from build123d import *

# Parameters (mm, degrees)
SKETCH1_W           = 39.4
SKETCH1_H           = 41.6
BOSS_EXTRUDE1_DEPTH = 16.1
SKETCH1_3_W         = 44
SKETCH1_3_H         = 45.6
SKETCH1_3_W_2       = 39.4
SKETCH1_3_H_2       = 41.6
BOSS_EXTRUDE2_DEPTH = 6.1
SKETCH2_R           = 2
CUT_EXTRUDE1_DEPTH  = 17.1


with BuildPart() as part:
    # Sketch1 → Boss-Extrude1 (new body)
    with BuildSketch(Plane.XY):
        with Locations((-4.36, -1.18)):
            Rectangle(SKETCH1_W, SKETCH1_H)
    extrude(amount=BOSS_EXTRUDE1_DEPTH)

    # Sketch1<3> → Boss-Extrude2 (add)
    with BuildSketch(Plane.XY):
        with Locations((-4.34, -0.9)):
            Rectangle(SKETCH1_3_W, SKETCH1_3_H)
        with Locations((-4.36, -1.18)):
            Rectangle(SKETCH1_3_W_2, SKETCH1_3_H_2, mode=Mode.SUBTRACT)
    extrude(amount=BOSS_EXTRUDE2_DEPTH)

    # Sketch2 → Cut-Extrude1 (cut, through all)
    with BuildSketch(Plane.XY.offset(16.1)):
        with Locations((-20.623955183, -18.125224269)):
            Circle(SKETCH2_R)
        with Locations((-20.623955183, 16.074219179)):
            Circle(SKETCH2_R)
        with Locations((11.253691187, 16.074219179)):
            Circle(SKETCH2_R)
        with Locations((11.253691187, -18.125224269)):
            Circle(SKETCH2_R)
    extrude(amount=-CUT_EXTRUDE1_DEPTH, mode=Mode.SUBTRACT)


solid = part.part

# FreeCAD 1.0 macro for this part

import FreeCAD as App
import Part
import Sketcher

V = App.Vector
Q = App.Units.Quantity


def add_polygon(sketch, points):
    """Adds a closed chain of lines whose ends are joined by coincident constraints."""
    first, n = sketch.GeometryCount, len(points)
    for a, b in zip(points, points[1:] + points[:1]):
        sketch.addGeometry(Part.LineSegment(App.Vector(*a, 0), App.Vector(*b, 0)), False)
    for i in range(n):
        sketch.addConstraint(Sketcher.Constraint("Coincident", first + i, 2, first + (i + 1) % n, 1))

doc = App.newDocument("Part")
body = doc.addObject("PartDesign::Body", "Body")

# Sketch on XY plane
sketch1 = doc.addObject("Sketcher::SketchObject", "Sketch")
body.addObject(sketch1)
sketch1.AttachmentSupport = (doc.XY_Plane, [""])
sketch1.MapMode = "FlatFace"
add_polygon(sketch1, [(-24, 20), (-24, -22), (15, -22), (15, 20)])  # lines 0-3
sketch1.addConstraint(Sketcher.Constraint("Vertical", 0))
sketch1.addConstraint(Sketcher.Constraint("Horizontal", 1))
sketch1.addConstraint(Sketcher.Constraint("Vertical", 2))
sketch1.addConstraint(Sketcher.Constraint("Horizontal", 3))
sketch1.addConstraint(Sketcher.Constraint("DistanceX", 1, 1, 1, 2, Q("39.4 mm")))
sketch1.addConstraint(Sketcher.Constraint("DistanceY", 0, 2, 0, 1, Q("41.6 mm")))
sketch1.addConstraint(Sketcher.Constraint("DistanceX", 0, 2, -1, 1, Q("24.06 mm")))
sketch1.addConstraint(Sketcher.Constraint("DistanceY", 0, 2, -1, 1, Q("21.98 mm")))
pad1 = doc.addObject("PartDesign::Pad", "Pad")
body.addObject(pad1)
pad1.Profile = sketch1
pad1.Length = 16.1

# Sketch on XY plane
sketch2 = doc.addObject("Sketcher::SketchObject", "Sketch001")
body.addObject(sketch2)
sketch2.AttachmentSupport = (doc.XY_Plane, [""])
sketch2.MapMode = "FlatFace"
add_polygon(sketch2, [(-26, 22), (-26, -24), (18, -24), (18, 22)])  # lines 0-3
add_polygon(sketch2, [(15, -22), (-24, -22), (-24, 20), (15, 20)])  # lines 4-7
sketch2.addConstraint(Sketcher.Constraint("Vertical", 0))
sketch2.addConstraint(Sketcher.Constraint("Horizontal", 1))
sketch2.addConstraint(Sketcher.Constraint("Vertical", 2))
sketch2.addConstraint(Sketcher.Constraint("Horizontal", 3))
sketch2.addConstraint(Sketcher.Constraint("Horizontal", 4))
sketch2.addConstraint(Sketcher.Constraint("Vertical", 5))
sketch2.addConstraint(Sketcher.Constraint("Horizontal", 6))
sketch2.addConstraint(Sketcher.Constraint("Vertical", 7))
sketch2.addConstraint(Sketcher.Constraint("DistanceX", 1, 1, 1, 2, Q("44 mm")))
sketch2.addConstraint(Sketcher.Constraint("DistanceX", 4, 2, 4, 1, Q("39.4 mm")))
sketch2.addConstraint(Sketcher.Constraint("DistanceY", 0, 2, 0, 1, Q("45.6 mm")))
sketch2.addConstraint(Sketcher.Constraint("DistanceY", 5, 1, 5, 2, Q("41.6 mm")))
sketch2.addConstraint(Sketcher.Constraint("DistanceY", 0, 2, -1, 1, Q("23.7 mm")))
sketch2.addConstraint(Sketcher.Constraint("DistanceX", 0, 2, -1, 1, Q("26.34 mm")))
sketch2.addConstraint(Sketcher.Constraint("DistanceX", 4, 2, -1, 1, Q("24.06 mm")))
sketch2.addConstraint(Sketcher.Constraint("DistanceY", 4, 2, -1, 1, Q("21.98 mm")))
pad2 = doc.addObject("PartDesign::Pad", "Pad001")
body.addObject(pad2)
pad2.Profile = sketch2
pad2.Length = 6.1

# Sketch on XY plane
sketch3 = doc.addObject("Sketcher::SketchObject", "Sketch002")
body.addObject(sketch3)
sketch3.AttachmentSupport = (doc.XY_Plane, [""])
sketch3.MapMode = "FlatFace"
sketch3.AttachmentOffset = App.Placement(V(0, 0, 16.1), App.Rotation())
sketch3.addGeometry(Part.Circle(V(-20.6, -18.1, 0), V(0, 0, 1), 2), False)
sketch3.addGeometry(Part.Circle(V(-20.6, 16.1, 0), V(0, 0, 1), 2), False)
sketch3.addGeometry(Part.Circle(V(11.3, 16.1, 0), V(0, 0, 1), 2), False)
sketch3.addGeometry(Part.Circle(V(11.3, -18.1, 0), V(0, 0, 1), 2), False)
sketch3.addConstraint(Sketcher.Constraint("Equal", 0, 1))
sketch3.addConstraint(Sketcher.Constraint("Equal", 1, 2))
sketch3.addConstraint(Sketcher.Constraint("Equal", 2, 3))
sketch3.addConstraint(Sketcher.Constraint("Horizontal", 1, 3, 2, 3))
sketch3.addConstraint(Sketcher.Constraint("Horizontal", 0, 3, 3, 3))
sketch3.addConstraint(Sketcher.Constraint("Vertical", 0, 3, 1, 3))
sketch3.addConstraint(Sketcher.Constraint("Vertical", 2, 3, 3, 3))
sketch3.addConstraint(Sketcher.Constraint("Diameter", 0, Q("4 mm")))
sketch3.addConstraint(Sketcher.Constraint("DistanceY", -1, 1, 1, 3, Q("16.074219 mm")))
sketch3.addConstraint(Sketcher.Constraint("DistanceX", -1, 1, 2, 3, Q("11.253691 mm")))
sketch3.addConstraint(Sketcher.Constraint("DistanceX", 0, 3, -1, 1, Q("20.623955 mm")))
sketch3.addConstraint(Sketcher.Constraint("DistanceY", 0, 3, -1, 1, Q("18.125224 mm")))
pocket1 = doc.addObject("PartDesign::Pocket", "Pocket")
body.addObject(pocket1)
pocket1.Profile = sketch3
pocket1.Type = "ThroughAll"

doc.recompute()
